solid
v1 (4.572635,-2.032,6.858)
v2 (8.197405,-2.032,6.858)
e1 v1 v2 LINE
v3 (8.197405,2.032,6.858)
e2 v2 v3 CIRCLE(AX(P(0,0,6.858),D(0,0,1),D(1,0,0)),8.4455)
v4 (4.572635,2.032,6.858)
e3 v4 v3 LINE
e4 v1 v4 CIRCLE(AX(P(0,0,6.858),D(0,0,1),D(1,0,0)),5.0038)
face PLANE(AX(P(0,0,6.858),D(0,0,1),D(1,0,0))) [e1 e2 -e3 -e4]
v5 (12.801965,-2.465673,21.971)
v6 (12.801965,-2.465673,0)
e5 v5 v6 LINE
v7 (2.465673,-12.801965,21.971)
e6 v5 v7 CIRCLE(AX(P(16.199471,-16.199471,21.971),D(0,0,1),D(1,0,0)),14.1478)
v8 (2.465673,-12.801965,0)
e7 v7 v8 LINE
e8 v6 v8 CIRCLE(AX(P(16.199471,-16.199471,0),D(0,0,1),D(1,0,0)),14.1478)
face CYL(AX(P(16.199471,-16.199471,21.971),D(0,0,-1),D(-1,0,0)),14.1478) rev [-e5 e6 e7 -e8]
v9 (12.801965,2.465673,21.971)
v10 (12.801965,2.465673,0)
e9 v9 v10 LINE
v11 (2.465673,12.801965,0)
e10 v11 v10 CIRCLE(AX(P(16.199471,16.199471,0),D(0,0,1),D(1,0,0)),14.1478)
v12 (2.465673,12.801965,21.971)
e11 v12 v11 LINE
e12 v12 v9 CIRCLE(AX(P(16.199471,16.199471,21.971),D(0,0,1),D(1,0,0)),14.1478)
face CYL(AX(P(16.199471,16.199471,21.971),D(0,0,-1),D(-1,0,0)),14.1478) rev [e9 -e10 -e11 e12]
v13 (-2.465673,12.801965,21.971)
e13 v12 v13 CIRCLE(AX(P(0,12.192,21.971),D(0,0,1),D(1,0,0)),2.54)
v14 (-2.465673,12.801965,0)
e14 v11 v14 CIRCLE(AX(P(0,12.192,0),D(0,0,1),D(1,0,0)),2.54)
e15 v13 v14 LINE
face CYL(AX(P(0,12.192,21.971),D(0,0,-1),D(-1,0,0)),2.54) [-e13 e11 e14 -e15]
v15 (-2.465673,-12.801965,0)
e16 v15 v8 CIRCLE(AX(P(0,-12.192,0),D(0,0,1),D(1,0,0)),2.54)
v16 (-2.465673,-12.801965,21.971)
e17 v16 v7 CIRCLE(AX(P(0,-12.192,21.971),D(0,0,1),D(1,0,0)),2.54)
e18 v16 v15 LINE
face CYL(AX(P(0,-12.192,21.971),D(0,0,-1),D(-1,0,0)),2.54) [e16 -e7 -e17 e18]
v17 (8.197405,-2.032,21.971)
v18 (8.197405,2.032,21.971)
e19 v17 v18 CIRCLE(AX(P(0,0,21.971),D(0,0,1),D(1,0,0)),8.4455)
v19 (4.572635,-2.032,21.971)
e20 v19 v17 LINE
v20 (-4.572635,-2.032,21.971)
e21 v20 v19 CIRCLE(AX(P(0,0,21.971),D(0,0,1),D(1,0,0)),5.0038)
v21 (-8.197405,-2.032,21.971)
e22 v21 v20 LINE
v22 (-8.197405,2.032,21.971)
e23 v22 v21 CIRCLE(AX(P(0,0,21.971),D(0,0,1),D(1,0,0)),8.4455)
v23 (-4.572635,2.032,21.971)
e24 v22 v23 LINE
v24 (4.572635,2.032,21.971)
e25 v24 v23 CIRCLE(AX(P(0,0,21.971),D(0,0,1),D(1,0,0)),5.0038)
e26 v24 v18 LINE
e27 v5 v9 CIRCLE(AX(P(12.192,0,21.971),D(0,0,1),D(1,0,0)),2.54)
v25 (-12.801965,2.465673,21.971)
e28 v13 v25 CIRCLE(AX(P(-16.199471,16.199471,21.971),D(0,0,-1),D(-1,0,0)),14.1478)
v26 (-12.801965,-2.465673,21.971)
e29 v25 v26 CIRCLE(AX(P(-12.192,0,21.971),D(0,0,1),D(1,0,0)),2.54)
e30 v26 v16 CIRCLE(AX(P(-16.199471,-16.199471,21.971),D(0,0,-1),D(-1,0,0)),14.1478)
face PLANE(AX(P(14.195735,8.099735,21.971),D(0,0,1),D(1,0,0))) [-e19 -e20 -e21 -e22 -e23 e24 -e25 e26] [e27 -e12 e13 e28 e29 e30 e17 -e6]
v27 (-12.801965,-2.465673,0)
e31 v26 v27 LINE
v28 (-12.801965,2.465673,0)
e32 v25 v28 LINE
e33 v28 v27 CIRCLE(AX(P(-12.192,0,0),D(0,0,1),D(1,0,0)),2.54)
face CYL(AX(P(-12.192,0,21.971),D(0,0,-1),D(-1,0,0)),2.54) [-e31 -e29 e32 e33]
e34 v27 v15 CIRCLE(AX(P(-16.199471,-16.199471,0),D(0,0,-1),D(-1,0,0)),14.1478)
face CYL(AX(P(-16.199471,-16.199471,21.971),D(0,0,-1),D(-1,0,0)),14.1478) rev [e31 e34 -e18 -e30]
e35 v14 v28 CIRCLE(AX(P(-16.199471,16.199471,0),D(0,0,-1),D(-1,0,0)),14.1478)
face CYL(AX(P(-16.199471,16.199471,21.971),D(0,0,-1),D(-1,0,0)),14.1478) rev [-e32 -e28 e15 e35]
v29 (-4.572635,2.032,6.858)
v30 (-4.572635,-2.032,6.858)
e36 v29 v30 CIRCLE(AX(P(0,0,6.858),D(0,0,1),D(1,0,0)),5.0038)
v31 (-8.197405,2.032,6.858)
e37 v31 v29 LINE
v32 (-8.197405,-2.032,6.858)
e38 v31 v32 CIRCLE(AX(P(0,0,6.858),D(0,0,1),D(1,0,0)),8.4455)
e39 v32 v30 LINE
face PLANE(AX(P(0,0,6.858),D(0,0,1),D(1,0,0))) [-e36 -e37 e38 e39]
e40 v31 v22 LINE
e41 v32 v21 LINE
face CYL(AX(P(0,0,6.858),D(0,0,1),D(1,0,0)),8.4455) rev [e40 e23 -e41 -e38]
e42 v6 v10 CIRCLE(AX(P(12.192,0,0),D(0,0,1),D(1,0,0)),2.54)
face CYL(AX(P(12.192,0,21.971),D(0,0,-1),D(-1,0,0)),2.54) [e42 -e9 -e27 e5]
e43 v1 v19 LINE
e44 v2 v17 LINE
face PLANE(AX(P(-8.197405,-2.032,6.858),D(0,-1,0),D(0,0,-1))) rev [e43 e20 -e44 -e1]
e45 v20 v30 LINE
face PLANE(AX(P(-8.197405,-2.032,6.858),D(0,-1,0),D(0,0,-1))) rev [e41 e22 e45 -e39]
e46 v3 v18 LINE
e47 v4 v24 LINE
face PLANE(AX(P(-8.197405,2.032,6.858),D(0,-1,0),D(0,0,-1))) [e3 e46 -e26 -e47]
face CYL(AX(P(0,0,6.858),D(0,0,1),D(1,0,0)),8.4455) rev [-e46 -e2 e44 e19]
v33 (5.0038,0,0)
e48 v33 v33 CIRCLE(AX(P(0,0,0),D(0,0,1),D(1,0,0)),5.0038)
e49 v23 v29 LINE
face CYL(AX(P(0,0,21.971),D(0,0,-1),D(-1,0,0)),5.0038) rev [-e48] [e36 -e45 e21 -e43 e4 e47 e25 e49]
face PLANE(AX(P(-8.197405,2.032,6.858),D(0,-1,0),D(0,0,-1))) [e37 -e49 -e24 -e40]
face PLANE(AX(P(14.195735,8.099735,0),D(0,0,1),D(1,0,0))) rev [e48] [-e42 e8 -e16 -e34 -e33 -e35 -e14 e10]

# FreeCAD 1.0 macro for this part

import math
import FreeCAD as App
import Part
import Sketcher
Q = App.Units.Quantity

doc = App.newDocument("Part")
body = doc.addObject("PartDesign::Body", "Body")

# Sketch on XY plane
sketch1 = body.newObject("Sketcher::SketchObject", "Sketch")
sketch1.AttachmentSupport = (doc.getObject("XY_Plane"), [""])
sketch1.MapMode = "FlatFace"
sketch1.addGeometry([
    Part.ArcOfCircle(Part.Circle(App.Vector(0, 12.2, 0), App.Vector(0, 0, 1), 2.5), math.radians(14), math.radians(166)),  # 0
    Part.ArcOfCircle(Part.Circle(App.Vector(-16.2, 16.2, 0), App.Vector(0, 0, 1), 14.1), math.radians(-76), math.radians(-14)),  # 1
    Part.ArcOfCircle(Part.Circle(App.Vector(-12.2, 0, 0), App.Vector(0, 0, 1), 2.5), math.radians(104), math.radians(256)),  # 2
    Part.ArcOfCircle(Part.Circle(App.Vector(-16.2, -16.2, 0), App.Vector(0, 0, 1), 14.1), math.radians(14), math.radians(76)),  # 3
    Part.ArcOfCircle(Part.Circle(App.Vector(0, -12.2, 0), App.Vector(0, 0, 1), 2.5), math.radians(-166), math.radians(-14)),  # 4
    Part.ArcOfCircle(Part.Circle(App.Vector(16.2, -16.2, 0), App.Vector(0, 0, 1), 14.1), math.radians(104), math.radians(166)),  # 5
    Part.ArcOfCircle(Part.Circle(App.Vector(12.2, 0, 0), App.Vector(0, 0, 1), 2.5), math.radians(-76), math.radians(76)),  # 6
    Part.ArcOfCircle(Part.Circle(App.Vector(16.2, 16.2, 0), App.Vector(0, 0, 1), 14.1), math.radians(-166), math.radians(-104)),  # 7
    Part.Circle(App.Vector(0, 0, 0), App.Vector(0, 0, 1), 5),  # 8
], False)
sketch1.addConstraint([
    Sketcher.Constraint("Tangent", 0, 2, 1, 2),
    Sketcher.Constraint("Tangent", 1, 1, 2, 1),
    Sketcher.Constraint("Tangent", 2, 2, 3, 2),
    Sketcher.Constraint("Tangent", 3, 1, 4, 1),
    Sketcher.Constraint("Tangent", 4, 2, 5, 2),
    Sketcher.Constraint("Tangent", 5, 1, 6, 1),
    Sketcher.Constraint("Tangent", 6, 2, 7, 2),
    Sketcher.Constraint("Tangent", 7, 1, 0, 1),
    Sketcher.Constraint("Coincident", 8, 3, -1, 1),
    Sketcher.Constraint("Equal", 0, 2),
    Sketcher.Constraint("Equal", 1, 3),
    Sketcher.Constraint("Equal", 2, 4),
    Sketcher.Constraint("Equal", 3, 5),
    Sketcher.Constraint("Equal", 4, 6),
    Sketcher.Constraint("Equal", 5, 7),
    Sketcher.Constraint("Symmetric", 0, 3, 4, 3, -1, 1),
    Sketcher.Constraint("Symmetric", 2, 3, 6, 3, -1, 1),
    Sketcher.Constraint("Symmetric", 3, 3, 5, 3, -2),
    Sketcher.Constraint("Radius", 0, Q("0.1 in")),
    Sketcher.Constraint("Diameter", 8, Q("0.394 in")),
    Sketcher.Constraint("Radius", 1, Q("0.557 in")),
    Sketcher.Constraint("DistanceY", -1, 1, 0, 3, Q("0.48 in")),
    Sketcher.Constraint("DistanceX", 2, 3, -1, 1, Q("0.48 in")),
])
pad1 = body.newObject("PartDesign::Pad", "Pad")
pad1.Profile = sketch1
pad1.Length = Q("0.865 in")

# Sketch on XY plane
sketch2 = body.newObject("Sketcher::SketchObject", "Sketch001")
sketch2.AttachmentSupport = (doc.getObject("XY_Plane"), [""])
sketch2.MapMode = "FlatFace"
sketch2.AttachmentOffset = App.Placement(App.Vector(0, 0, 0.865 * 25.4), App.Rotation())
sketch2.addGeometry([
    Part.LineSegment(App.Vector(8.2, 2, 0), App.Vector(-8.2, 2, 0)),
    Part.ArcOfCircle(Part.Circle(App.Vector(0, 0, 0), App.Vector(0, 0, 1), 8.4), math.radians(166), math.radians(194)),
    Part.LineSegment(App.Vector(-8.2, -2, 0), App.Vector(8.2, -2, 0)),
    Part.ArcOfCircle(Part.Circle(App.Vector(0, 0, 0), App.Vector(0, 0, 1), 8.4), math.radians(-14), math.radians(14)),
], False)
sketch2.addConstraint([
    Sketcher.Constraint("Coincident", 0, 2, 1, 1),
    Sketcher.Constraint("Coincident", 1, 2, 2, 1),
    Sketcher.Constraint("Coincident", 2, 2, 3, 1),
    Sketcher.Constraint("Coincident", 3, 2, 0, 1),
    Sketcher.Constraint("Horizontal", 0),
    Sketcher.Constraint("Horizontal", 2),
    Sketcher.Constraint("Coincident", 1, 3, -1, 1),
    Sketcher.Constraint("Coincident", 3, 3, -1, 1),
    Sketcher.Constraint("Equal", 1, 3),
    Sketcher.Constraint("Vertical", 0, 2, 1, 2),
    Sketcher.Constraint("Radius", 1, Q("0.3325 in")),
    Sketcher.Constraint("DistanceY", -1, 1, 0, 2, Q("0.08 in")),
])
pocket1 = body.newObject("PartDesign::Pocket", "Pocket")
pocket1.Profile = sketch2
pocket1.Length = Q("0.595 in")

doc.recompute()
